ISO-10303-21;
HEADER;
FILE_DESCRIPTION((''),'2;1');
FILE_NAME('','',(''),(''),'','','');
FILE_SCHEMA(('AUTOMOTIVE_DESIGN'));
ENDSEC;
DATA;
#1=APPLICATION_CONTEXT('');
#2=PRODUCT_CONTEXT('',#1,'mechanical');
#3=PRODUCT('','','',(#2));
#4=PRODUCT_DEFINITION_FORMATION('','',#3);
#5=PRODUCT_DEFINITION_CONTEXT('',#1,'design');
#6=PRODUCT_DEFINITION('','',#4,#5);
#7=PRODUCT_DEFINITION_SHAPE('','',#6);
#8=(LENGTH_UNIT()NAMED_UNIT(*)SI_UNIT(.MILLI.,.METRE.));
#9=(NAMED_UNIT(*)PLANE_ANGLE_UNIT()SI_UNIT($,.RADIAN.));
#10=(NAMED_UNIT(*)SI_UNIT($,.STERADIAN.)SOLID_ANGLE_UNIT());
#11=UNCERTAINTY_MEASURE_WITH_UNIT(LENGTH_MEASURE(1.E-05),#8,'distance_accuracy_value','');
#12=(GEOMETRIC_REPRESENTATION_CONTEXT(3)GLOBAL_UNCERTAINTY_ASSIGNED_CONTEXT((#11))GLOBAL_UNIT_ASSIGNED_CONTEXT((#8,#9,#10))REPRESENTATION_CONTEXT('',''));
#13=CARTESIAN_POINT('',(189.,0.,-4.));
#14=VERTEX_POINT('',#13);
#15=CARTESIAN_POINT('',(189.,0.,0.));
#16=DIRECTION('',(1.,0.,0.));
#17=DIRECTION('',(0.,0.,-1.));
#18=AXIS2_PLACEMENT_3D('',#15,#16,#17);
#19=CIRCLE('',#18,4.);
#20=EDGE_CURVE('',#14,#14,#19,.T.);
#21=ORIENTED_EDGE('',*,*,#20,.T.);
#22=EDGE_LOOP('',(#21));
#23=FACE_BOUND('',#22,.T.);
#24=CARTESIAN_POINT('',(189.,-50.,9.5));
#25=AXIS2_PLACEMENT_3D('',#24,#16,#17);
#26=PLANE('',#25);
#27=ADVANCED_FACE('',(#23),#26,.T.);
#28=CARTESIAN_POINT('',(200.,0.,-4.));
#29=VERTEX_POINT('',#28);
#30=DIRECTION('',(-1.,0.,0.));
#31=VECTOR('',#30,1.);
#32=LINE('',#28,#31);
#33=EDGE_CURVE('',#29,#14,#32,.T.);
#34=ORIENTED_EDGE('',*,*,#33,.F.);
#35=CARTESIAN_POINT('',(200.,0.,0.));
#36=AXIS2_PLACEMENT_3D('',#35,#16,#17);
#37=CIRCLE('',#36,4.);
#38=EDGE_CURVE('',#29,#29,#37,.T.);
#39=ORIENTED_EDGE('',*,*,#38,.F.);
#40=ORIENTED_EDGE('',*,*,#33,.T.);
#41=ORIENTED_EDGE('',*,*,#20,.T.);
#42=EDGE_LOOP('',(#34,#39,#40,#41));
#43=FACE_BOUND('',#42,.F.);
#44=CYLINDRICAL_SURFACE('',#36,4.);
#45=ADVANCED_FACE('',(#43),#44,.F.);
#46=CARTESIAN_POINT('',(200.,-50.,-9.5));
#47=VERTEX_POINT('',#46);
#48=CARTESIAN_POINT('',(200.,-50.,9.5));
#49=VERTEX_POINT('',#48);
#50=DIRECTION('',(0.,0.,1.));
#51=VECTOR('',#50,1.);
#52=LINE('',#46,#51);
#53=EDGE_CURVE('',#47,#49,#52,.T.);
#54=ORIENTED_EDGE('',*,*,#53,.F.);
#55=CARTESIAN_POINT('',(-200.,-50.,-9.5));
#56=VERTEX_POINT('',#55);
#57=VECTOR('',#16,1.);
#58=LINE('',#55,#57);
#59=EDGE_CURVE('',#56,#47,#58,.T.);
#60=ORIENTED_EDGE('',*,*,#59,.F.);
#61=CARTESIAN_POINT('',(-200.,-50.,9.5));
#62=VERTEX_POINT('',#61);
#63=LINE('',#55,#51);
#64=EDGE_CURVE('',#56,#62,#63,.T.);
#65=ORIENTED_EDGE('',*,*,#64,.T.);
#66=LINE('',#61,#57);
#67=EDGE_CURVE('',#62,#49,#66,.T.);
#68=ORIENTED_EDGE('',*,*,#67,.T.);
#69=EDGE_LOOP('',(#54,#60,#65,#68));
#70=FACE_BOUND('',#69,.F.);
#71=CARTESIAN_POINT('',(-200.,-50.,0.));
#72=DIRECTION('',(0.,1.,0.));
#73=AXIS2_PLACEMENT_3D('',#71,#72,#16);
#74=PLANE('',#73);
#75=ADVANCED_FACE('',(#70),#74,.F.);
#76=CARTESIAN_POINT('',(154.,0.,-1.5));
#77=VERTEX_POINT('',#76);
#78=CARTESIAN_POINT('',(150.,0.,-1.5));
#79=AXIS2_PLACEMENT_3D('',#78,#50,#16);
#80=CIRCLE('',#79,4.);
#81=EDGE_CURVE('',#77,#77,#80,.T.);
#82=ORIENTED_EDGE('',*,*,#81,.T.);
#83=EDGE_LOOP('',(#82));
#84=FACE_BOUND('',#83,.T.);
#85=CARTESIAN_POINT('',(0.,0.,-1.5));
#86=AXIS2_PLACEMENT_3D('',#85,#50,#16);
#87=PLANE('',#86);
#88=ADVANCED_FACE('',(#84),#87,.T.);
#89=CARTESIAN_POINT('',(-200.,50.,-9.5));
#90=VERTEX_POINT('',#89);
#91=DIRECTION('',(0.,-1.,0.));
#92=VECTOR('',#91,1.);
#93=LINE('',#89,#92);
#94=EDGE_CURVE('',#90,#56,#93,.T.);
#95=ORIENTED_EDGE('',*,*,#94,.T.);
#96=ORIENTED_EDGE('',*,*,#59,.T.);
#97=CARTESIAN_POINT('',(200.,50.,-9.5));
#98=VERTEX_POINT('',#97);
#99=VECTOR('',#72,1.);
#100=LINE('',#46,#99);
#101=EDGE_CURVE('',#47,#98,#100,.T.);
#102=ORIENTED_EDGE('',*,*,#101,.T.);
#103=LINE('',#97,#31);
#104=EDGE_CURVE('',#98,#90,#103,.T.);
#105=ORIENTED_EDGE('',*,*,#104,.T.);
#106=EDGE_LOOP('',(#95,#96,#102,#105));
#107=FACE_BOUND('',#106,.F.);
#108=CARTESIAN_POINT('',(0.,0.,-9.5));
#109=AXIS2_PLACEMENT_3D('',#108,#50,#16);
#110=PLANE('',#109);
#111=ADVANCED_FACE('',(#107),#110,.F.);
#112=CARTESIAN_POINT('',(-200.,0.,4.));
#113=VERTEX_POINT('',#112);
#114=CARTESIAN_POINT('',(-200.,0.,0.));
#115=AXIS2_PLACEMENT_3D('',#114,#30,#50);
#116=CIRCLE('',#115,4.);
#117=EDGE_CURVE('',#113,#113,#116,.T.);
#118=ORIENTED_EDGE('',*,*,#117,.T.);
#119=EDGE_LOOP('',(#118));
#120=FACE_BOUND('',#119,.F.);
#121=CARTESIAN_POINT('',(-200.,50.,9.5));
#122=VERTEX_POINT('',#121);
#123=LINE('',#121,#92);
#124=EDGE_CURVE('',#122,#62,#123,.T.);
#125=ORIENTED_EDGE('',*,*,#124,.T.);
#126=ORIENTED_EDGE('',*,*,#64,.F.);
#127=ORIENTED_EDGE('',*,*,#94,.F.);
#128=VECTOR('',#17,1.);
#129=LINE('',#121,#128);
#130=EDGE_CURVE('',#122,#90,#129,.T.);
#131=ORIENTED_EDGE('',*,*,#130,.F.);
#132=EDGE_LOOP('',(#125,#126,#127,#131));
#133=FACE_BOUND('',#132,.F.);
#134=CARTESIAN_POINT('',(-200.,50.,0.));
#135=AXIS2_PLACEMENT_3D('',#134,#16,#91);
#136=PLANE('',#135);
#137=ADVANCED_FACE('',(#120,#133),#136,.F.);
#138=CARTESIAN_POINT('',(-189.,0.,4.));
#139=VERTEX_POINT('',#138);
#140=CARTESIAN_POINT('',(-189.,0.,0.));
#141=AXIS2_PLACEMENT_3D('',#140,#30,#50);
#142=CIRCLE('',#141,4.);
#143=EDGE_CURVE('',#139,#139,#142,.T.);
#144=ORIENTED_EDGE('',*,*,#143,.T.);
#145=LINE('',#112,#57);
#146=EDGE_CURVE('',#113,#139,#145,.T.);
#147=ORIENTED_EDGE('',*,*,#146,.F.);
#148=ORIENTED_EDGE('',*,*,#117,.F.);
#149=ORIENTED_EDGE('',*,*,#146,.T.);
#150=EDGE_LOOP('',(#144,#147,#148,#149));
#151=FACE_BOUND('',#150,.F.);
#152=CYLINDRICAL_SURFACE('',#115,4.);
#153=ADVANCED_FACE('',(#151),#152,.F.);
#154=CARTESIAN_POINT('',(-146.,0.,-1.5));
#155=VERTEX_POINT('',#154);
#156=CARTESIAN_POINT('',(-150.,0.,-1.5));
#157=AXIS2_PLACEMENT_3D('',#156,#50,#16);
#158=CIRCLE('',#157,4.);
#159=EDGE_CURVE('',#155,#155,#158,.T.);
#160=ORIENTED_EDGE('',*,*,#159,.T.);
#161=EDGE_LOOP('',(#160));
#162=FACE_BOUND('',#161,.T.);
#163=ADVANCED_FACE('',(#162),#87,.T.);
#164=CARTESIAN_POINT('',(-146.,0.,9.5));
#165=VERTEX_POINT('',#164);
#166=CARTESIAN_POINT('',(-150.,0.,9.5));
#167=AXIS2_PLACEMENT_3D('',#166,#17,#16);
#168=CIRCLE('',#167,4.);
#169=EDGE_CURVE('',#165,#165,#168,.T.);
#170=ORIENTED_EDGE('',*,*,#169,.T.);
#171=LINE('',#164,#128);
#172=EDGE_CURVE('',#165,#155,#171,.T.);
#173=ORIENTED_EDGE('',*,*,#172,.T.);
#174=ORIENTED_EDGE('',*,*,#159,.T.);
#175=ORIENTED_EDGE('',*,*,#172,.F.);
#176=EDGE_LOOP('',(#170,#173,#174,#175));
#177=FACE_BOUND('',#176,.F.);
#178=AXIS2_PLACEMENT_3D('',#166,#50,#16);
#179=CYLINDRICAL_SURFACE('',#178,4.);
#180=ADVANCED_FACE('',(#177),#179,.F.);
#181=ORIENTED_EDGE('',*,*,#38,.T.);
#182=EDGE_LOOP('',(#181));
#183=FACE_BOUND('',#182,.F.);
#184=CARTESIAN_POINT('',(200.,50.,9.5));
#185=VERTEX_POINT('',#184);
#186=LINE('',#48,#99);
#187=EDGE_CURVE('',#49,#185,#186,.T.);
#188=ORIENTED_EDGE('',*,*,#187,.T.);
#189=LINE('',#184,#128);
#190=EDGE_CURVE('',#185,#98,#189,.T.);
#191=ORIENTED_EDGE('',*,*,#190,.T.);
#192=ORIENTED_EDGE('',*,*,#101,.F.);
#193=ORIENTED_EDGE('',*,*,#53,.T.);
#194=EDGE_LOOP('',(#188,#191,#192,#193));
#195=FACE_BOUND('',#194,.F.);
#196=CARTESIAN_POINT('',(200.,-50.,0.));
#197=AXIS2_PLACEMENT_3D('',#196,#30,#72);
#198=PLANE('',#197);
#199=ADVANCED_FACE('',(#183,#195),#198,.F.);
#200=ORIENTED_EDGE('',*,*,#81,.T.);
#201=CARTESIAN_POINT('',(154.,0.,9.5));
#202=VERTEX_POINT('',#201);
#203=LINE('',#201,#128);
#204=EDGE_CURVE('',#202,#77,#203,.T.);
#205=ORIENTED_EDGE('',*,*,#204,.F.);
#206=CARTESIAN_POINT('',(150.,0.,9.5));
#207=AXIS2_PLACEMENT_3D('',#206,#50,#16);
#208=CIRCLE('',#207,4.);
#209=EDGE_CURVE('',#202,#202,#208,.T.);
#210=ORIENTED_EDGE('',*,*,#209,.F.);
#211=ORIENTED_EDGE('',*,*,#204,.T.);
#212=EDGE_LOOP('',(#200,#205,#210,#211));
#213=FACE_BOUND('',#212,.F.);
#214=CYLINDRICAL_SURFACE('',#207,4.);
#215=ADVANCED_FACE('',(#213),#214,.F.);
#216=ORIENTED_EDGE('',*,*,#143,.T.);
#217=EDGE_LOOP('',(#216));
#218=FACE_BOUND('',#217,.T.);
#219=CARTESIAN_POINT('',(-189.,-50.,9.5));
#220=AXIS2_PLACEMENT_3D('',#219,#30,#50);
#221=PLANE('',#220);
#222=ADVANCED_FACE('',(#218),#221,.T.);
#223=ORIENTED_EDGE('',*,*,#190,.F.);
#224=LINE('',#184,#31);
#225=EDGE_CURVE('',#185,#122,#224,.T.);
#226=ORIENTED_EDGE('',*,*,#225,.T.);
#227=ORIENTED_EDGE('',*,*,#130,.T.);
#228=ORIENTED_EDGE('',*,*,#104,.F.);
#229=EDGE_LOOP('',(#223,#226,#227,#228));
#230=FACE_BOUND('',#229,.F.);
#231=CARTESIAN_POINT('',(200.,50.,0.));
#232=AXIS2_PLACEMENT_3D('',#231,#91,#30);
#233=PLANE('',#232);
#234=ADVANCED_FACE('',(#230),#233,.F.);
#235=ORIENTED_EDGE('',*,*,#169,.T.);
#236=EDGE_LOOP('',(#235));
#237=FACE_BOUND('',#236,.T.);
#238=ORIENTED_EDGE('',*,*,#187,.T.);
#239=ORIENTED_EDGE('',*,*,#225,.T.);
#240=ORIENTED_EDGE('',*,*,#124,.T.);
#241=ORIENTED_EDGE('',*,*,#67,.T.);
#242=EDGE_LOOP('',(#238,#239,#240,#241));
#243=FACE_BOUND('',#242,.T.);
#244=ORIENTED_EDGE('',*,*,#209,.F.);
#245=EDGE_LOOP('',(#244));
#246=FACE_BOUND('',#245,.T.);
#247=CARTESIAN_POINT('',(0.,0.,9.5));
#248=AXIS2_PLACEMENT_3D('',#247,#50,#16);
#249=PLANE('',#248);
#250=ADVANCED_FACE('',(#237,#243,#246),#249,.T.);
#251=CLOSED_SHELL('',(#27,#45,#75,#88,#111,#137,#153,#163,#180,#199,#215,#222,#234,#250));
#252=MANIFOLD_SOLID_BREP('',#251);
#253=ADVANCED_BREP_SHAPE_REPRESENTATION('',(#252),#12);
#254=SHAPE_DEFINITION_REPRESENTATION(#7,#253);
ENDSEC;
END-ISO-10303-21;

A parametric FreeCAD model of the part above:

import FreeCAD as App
import Part
import Sketcher

V = App.Vector
Q = App.Units.Quantity

doc = App.newDocument("Part")
params = doc.addObject("Spreadsheet::Sheet", "Params")
for row, (alias, value) in enumerate([
    ("sketch1_width", "400 mm"),
    ("sketch1_height", "100 mm"),
    ("pad1_length", "9.5 mm"),
    ("pad1_length2", "9.5 mm"),
    ("sketch2_diameter", "8 mm"),
    ("pocket1_length", "11 mm"),
    ("sketch3_diameter", "8 mm"),
    ("pocket2_length", "11 mm"),
    ("sketch4_diameter", "8 mm"),
    ("pocket3_length", "11 mm"),
], start=1):
    params.set(f"A{row}", alias)
    params.set(f"B{row}", "=" + value)
    params.setAlias(f"B{row}", alias)

body = doc.addObject("PartDesign::Body", "Body")

sketch1 = body.newObject("Sketcher::SketchObject", "Sketch")
sketch1.AttachmentSupport = (doc.getObject("XY_Plane"), [""])
sketch1.MapMode = "FlatFace"
sketch1.addGeometry([
    Part.LineSegment(V(-200, 50, 0), V(-200, -50, 0)),
    Part.LineSegment(V(-200, -50, 0), V(200, -50, 0)),
    Part.LineSegment(V(200, -50, 0), V(200, 50, 0)),
    Part.LineSegment(V(200, 50, 0), V(-200, 50, 0)),
], False)
sketch1.addConstraint([
    Sketcher.Constraint("Coincident", 0, 2, 1, 1),
    Sketcher.Constraint("Coincident", 1, 2, 2, 1),
    Sketcher.Constraint("Coincident", 2, 2, 3, 1),
    Sketcher.Constraint("Coincident", 3, 2, 0, 1),
    Sketcher.Constraint("Vertical", 0),
    Sketcher.Constraint("Horizontal", 1),
    Sketcher.Constraint("Vertical", 2),
    Sketcher.Constraint("Horizontal", 3),
    Sketcher.Constraint("Symmetric", 0, 2, 2, 2, -1, 1),
    Sketcher.Constraint("DistanceX", 1, 1, 1, 2, Q("400 mm")),
    Sketcher.Constraint("DistanceY", 0, 2, 0, 1, Q("100 mm")),
])
sketch1.setExpression("Constraints[9]", "Params.sketch1_width")
sketch1.setExpression("Constraints[10]", "Params.sketch1_height")
pad1 = body.newObject("PartDesign::Pad", "Pad")
pad1.Profile = sketch1
pad1.Type = "TwoLengths"
pad1.setExpression("Length", "Params.pad1_length")
pad1.setExpression("Length2", "Params.pad1_length2")

sketch2 = body.newObject("Sketcher::SketchObject", "Sketch001")
sketch2.AttachmentSupport = (doc.getObject("XY_Plane"), [""])
sketch2.MapMode = "FlatFace"
sketch2.AttachmentOffset = App.Placement(V(0, 0, 9.5), App.Rotation())
sketch2.addGeometry([
    Part.Circle(V(-150, 0, 0), V(0, 0, 1), 4),
    Part.Circle(V(150, 0, 0), V(0, 0, 1), 4),
], False)
sketch2.addConstraint([
    Sketcher.Constraint("Equal", 0, 1),
    Sketcher.Constraint("Symmetric", 0, 3, 1, 3, -1, 1),
    Sketcher.Constraint("PointOnObject", 0, 3, -1),
    Sketcher.Constraint("Diameter", 0, Q("8 mm")),
    Sketcher.Constraint("DistanceX", 0, 3, -1, 1, Q("150 mm")),
])
sketch2.setExpression("Constraints[3]", "Params.sketch2_diameter")
pocket1 = body.newObject("PartDesign::Pocket", "Pocket")
pocket1.Profile = sketch2
pocket1.setExpression("Length", "Params.pocket1_length")

sketch3 = body.newObject("Sketcher::SketchObject", "Sketch002")
sketch3.AttachmentSupport = (doc.getObject("YZ_Plane"), [""])
sketch3.MapMode = "FlatFace"
sketch3.AttachmentOffset = App.Placement(V(0, 0, 200), App.Rotation())
sketch3.addGeometry(Part.Circle(V(0, 0, 0), V(0, 0, 1), 4), False)
sketch3.addConstraint([
    Sketcher.Constraint("Coincident", 0, 3, -1, 1),
    Sketcher.Constraint("Diameter", 0, Q("8 mm")),
])
sketch3.setExpression("Constraints[1]", "Params.sketch3_diameter")
pocket2 = body.newObject("PartDesign::Pocket", "Pocket001")
pocket2.Profile = sketch3
pocket2.setExpression("Length", "Params.pocket2_length")

sketch4 = body.newObject("Sketcher::SketchObject", "Sketch003")
sketch4.AttachmentSupport = (doc.getObject("YZ_Plane"), [""])
sketch4.MapMode = "FlatFace"
sketch4.AttachmentOffset = App.Placement(V(0, 0, -200), App.Rotation())
sketch4.addGeometry(Part.Circle(V(0, 0, 0), V(0, 0, 1), 4), False)
sketch4.addConstraint([
    Sketcher.Constraint("Coincident", 0, 3, -1, 1),
    Sketcher.Constraint("Diameter", 0, Q("8 mm")),
])
sketch4.setExpression("Constraints[1]", "Params.sketch4_diameter")
pocket3 = body.newObject("PartDesign::Pocket", "Pocket002")
pocket3.Profile = sketch4
pocket3.setExpression("Length", "Params.pocket3_length")
pocket3.Reversed = True

doc.recompute()
